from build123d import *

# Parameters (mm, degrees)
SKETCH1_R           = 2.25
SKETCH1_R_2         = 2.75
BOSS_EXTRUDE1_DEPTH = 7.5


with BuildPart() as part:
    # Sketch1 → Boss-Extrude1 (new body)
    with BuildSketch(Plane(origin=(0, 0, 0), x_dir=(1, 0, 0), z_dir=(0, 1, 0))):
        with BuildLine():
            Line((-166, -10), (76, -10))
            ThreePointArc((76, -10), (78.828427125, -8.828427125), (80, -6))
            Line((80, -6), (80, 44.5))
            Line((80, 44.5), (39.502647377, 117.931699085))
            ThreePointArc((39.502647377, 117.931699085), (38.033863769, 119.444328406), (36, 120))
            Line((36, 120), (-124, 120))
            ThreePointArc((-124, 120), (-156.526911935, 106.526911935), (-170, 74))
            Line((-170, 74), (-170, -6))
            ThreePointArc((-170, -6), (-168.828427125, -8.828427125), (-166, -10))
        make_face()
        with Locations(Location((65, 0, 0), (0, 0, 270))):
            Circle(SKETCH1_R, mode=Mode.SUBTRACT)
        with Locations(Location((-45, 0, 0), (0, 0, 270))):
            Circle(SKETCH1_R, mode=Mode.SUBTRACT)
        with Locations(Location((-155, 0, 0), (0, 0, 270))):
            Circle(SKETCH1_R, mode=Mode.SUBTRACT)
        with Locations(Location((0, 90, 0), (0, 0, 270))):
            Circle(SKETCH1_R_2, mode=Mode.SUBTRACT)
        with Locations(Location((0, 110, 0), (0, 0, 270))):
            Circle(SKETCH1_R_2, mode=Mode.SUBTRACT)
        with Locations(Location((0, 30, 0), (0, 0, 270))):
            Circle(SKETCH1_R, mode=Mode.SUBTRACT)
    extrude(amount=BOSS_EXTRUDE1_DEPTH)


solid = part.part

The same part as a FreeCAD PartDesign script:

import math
import FreeCAD as App
import Part
import Sketcher
from FreeCAD import Vector

doc = App.newDocument("Part")
body = doc.addObject("PartDesign::Body", "Body")

# Sketch on XZ plane
sketch1 = doc.addObject("Sketcher::SketchObject", "Sketch")
body.addObject(sketch1)
sketch1.AttachmentSupport = (doc.XZ_Plane, [""])
sketch1.MapMode = "FlatFace"
sketch1.addGeometry([
    Part.LineSegment(Vector(-166, 10, 0), Vector(76, 10, 0)),  # 0
    Part.ArcOfCircle(Part.Circle(Vector(76, 6, 0), Vector(0, 0, 1), 4), math.radians(0), math.radians(90)),  # 1
    Part.LineSegment(Vector(80, 6, 0), Vector(80, -44.5, 0)),  # 2
    Part.LineSegment(Vector(80, -44.5, 0), Vector(39.502647, -117.931699, 0)),  # 3
    Part.ArcOfCircle(Part.Circle(Vector(36, -116, 0), Vector(0, 0, 1), 4), math.radians(-90), math.radians(-28.876598)),  # 4
    Part.LineSegment(Vector(36, -120, 0), Vector(-124, -120, 0)),  # 5
    Part.ArcOfCircle(Part.Circle(Vector(-124, -74, 0), Vector(0, 0, 1), 46), math.radians(180), math.radians(270)),  # 6
    Part.LineSegment(Vector(-170, -74, 0), Vector(-170, 6, 0)),  # 7
    Part.ArcOfCircle(Part.Circle(Vector(-166, 6, 0), Vector(0, 0, 1), 4), math.radians(90), math.radians(180)),  # 8
    Part.Circle(Vector(-155, 0, 0), Vector(0, 0, 1), 2.25),  # 9
    Part.Circle(Vector(-45, 0, 0), Vector(0, 0, 1), 2.25),  # 10
    Part.Circle(Vector(65, 0, 0), Vector(0, 0, 1), 2.25),  # 11
    Part.Circle(Vector(0, -30, 0), Vector(0, 0, 1), 2.25),  # 12
    Part.Circle(Vector(0, -90, 0), Vector(0, 0, 1), 2.75),  # 13
    Part.Circle(Vector(0, -110, 0), Vector(0, 0, 1), 2.75),  # 14
], False)
sketch1.addConstraint([
    Sketcher.Constraint("Tangent", 0, 2, 1, 2),
    Sketcher.Constraint("Tangent", 1, 1, 2, 1),
    Sketcher.Constraint("Coincident", 2, 2, 3, 1),
    Sketcher.Constraint("Tangent", 3, 2, 4, 2),
    Sketcher.Constraint("Tangent", 4, 1, 5, 1),
    Sketcher.Constraint("Tangent", 5, 2, 6, 2),
    Sketcher.Constraint("Tangent", 6, 1, 7, 1),
    Sketcher.Constraint("Tangent", 7, 2, 8, 2),
    Sketcher.Constraint("Tangent", 8, 1, 0, 1),
    Sketcher.Constraint("Horizontal", 0),
    Sketcher.Constraint("Vertical", 2),
    Sketcher.Constraint("Horizontal", 5),
    Sketcher.Constraint("Vertical", 7),
    Sketcher.Constraint("Equal", 1, 4),
    Sketcher.Constraint("Equal", 4, 8),
    Sketcher.Constraint("Equal", 9, 10),
    Sketcher.Constraint("Equal", 10, 11),
    Sketcher.Constraint("Equal", 11, 12),
    Sketcher.Constraint("Equal", 13, 14),
    Sketcher.Constraint("PointOnObject", 9, 3, -1),
    Sketcher.Constraint("PointOnObject", 10, 3, -1),
    Sketcher.Constraint("PointOnObject", 11, 3, -1),
    Sketcher.Constraint("PointOnObject", 12, 3, -2),
    Sketcher.Constraint("PointOnObject", 13, 3, -2),
    Sketcher.Constraint("PointOnObject", 14, 3, -2),
    Sketcher.Constraint("Radius", 1, 4.0),
    Sketcher.Constraint("Radius", 6, 46.0),
    Sketcher.Constraint("Diameter", 9, 4.5),
    Sketcher.Constraint("Diameter", 13, 5.5),
    Sketcher.Constraint("DistanceX", 0, 1, 0, 2, 242.0),
    Sketcher.Constraint("DistanceX", 5, 2, 5, 1, 160.0),
    Sketcher.Constraint("DistanceY", 7, 1, 7, 2, 80.0),
    Sketcher.Constraint("DistanceY", 2, 2, 2, 1, 50.5),
    Sketcher.Constraint("DistanceX", -1, 1, 1, 3, 76.0),
    Sketcher.Constraint("DistanceY", -1, 1, 1, 3, 6.0),
    Sketcher.Constraint("DistanceX", 9, 3, -1, 1, 155.0),
    Sketcher.Constraint("DistanceX", 10, 3, -1, 1, 45.0),
    Sketcher.Constraint("DistanceX", -1, 1, 11, 3, 65.0),
    Sketcher.Constraint("DistanceY", 12, 3, -1, 1, 30.0),
    Sketcher.Constraint("DistanceY", 13, 3, -1, 1, 90.0),
    Sketcher.Constraint("DistanceY", 14, 3, -1, 1, 110.0),
])
pad1 = doc.addObject("PartDesign::Pad", "Pad")
body.addObject(pad1)
pad1.Profile = sketch1
pad1.Length = 7.5
pad1.Reversed = True

doc.recompute()
